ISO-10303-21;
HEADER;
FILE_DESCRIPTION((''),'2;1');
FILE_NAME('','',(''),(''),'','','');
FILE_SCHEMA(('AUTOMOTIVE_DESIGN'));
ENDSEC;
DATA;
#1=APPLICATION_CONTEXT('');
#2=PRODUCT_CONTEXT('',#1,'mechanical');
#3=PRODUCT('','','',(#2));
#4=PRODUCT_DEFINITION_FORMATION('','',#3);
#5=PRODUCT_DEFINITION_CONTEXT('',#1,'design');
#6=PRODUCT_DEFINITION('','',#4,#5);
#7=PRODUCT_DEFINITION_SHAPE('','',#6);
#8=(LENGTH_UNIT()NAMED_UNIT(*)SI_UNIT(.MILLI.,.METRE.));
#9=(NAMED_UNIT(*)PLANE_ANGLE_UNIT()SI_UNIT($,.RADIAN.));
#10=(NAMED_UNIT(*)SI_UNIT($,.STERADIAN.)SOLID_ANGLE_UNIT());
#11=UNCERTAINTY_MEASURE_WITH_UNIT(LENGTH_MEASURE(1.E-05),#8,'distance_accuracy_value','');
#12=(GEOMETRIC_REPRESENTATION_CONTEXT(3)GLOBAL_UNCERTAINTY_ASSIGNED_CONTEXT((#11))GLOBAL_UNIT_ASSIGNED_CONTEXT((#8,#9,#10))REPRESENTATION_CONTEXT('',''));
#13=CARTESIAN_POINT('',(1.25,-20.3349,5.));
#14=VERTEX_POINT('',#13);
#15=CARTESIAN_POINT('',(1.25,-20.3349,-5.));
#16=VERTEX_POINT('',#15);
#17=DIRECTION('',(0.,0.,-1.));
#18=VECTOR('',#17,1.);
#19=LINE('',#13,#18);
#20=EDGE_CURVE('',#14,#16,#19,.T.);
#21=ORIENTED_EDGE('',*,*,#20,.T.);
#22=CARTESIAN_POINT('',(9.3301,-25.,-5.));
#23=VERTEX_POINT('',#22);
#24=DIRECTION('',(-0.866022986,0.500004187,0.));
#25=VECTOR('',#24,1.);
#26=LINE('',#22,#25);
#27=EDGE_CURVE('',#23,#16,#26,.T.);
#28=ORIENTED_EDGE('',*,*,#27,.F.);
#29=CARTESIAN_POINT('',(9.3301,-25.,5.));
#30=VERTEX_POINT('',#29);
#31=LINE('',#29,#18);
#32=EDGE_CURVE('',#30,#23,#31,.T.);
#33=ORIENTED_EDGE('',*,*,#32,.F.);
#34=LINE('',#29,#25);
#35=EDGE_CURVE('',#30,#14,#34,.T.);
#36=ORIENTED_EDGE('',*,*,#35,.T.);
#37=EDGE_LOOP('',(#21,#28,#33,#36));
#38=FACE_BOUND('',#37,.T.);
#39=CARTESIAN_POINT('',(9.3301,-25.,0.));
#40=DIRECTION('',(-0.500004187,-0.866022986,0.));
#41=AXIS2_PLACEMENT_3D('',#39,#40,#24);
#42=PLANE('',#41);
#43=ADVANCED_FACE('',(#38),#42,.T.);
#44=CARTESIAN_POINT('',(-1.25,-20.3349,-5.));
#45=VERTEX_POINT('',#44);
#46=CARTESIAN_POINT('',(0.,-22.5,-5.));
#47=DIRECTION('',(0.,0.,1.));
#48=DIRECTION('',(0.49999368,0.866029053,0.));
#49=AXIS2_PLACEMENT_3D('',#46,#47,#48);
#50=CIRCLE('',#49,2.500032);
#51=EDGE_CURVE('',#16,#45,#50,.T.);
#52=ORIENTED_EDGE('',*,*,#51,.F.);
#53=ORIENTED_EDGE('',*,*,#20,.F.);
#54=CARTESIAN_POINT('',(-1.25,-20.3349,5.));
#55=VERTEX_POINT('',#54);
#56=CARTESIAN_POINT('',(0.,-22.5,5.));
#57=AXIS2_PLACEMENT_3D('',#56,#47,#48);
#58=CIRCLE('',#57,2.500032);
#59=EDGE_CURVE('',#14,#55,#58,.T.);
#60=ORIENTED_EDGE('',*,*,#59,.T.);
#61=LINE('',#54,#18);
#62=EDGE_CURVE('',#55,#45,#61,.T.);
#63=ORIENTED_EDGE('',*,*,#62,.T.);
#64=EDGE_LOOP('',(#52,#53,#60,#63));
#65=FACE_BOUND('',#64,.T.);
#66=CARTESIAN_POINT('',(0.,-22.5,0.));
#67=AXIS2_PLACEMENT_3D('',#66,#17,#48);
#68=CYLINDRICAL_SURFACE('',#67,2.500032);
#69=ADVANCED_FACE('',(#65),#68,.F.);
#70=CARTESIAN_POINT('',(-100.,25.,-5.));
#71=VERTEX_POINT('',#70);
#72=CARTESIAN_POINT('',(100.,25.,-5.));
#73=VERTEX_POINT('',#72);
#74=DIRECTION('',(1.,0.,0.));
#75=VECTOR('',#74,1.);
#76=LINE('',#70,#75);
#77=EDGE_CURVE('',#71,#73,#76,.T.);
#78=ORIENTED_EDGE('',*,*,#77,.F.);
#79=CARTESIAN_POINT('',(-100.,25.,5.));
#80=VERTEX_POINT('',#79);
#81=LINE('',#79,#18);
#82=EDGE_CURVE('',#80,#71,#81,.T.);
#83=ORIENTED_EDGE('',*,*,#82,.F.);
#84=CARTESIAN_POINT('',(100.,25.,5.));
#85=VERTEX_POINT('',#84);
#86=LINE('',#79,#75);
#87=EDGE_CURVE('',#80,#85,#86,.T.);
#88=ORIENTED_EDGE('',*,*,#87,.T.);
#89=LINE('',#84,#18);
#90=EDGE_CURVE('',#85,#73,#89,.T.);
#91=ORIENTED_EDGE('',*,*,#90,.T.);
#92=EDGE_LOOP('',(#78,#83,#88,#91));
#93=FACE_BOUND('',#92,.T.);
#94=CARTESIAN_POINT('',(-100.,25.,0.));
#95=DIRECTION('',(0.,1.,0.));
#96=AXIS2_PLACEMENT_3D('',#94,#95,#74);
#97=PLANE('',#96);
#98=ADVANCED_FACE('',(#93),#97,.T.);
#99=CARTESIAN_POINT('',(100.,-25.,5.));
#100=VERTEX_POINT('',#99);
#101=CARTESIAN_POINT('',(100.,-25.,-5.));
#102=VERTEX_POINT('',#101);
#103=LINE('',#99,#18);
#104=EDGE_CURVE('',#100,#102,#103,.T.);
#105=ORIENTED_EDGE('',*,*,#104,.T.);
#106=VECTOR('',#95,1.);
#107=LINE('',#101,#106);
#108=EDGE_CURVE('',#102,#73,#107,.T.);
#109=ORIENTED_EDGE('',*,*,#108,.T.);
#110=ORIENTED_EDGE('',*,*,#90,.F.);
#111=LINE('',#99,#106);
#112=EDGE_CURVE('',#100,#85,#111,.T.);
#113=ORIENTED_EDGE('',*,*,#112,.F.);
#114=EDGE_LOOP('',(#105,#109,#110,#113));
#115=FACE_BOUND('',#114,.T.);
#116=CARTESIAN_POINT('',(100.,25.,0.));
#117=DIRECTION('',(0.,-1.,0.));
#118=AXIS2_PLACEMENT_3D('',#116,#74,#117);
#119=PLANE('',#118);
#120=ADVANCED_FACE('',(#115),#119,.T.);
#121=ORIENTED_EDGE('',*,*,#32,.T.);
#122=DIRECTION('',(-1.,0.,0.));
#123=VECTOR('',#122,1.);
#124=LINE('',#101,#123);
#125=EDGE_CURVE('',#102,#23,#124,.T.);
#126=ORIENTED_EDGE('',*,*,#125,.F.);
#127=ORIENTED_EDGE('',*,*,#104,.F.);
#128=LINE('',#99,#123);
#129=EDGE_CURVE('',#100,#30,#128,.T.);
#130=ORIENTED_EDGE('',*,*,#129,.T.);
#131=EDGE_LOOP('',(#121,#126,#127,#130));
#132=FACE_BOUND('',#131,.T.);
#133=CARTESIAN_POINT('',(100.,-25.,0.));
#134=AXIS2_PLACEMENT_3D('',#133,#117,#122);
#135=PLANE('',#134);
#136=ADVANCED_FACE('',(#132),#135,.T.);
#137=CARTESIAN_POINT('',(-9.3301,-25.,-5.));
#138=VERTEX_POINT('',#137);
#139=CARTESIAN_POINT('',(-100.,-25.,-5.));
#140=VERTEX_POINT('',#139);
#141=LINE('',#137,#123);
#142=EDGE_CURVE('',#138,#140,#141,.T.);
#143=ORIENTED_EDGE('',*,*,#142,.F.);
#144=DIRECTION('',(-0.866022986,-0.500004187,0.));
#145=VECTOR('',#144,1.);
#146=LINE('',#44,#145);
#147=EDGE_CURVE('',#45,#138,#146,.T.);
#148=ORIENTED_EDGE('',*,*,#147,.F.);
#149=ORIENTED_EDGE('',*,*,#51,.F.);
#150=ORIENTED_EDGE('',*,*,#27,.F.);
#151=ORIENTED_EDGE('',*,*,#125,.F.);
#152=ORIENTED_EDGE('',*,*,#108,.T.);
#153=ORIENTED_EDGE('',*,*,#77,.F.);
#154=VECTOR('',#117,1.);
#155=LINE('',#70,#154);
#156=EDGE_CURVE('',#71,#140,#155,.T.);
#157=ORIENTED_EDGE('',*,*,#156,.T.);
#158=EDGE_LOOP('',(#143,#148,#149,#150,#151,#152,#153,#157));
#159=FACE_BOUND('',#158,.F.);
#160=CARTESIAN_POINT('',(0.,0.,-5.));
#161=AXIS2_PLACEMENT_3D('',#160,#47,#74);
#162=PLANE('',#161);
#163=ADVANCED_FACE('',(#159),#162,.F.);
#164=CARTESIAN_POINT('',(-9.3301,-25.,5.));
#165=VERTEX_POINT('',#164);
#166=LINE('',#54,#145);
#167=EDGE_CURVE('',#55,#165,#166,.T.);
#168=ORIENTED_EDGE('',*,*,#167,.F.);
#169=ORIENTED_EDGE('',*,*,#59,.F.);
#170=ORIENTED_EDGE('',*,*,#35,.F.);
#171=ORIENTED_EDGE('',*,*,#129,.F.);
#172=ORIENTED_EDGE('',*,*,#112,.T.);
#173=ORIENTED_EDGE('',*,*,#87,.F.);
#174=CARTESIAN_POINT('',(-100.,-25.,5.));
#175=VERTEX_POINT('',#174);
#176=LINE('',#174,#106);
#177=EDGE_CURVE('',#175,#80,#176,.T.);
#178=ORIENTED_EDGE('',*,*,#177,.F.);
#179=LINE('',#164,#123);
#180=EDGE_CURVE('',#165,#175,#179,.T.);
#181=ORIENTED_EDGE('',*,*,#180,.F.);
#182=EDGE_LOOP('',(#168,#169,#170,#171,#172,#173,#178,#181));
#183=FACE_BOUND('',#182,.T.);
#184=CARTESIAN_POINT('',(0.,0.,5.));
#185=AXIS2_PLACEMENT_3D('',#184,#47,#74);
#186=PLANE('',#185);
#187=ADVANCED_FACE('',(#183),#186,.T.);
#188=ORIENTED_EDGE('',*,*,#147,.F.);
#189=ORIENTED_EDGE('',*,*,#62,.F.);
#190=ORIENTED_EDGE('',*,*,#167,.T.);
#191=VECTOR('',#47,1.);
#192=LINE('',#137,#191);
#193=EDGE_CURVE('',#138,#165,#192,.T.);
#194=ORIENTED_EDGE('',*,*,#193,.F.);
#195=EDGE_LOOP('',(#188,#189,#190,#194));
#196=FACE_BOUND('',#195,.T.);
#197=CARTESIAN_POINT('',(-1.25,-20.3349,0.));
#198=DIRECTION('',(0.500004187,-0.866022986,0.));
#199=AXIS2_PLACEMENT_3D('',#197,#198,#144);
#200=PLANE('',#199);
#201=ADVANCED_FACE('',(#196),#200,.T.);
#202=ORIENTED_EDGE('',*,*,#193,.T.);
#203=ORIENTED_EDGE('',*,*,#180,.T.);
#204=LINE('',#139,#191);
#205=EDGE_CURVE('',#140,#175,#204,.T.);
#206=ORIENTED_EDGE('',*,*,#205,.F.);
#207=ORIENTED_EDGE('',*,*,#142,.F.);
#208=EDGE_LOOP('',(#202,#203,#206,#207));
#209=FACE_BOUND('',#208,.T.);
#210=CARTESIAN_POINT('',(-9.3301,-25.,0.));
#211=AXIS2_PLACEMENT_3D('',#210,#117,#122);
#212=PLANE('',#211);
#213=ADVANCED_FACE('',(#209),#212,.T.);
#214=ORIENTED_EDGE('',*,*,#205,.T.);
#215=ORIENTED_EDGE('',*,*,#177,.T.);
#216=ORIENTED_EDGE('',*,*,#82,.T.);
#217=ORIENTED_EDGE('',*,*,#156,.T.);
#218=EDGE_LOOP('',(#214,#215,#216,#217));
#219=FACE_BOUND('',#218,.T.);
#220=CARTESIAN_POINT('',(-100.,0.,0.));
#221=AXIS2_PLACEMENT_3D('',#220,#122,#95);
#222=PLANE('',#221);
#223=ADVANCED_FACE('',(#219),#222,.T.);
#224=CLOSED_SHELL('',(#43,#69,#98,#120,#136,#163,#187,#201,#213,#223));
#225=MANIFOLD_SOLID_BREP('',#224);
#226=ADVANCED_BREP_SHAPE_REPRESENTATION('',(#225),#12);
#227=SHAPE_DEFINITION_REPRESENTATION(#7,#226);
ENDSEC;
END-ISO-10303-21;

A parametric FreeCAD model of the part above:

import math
import FreeCAD as App
import Part
import Sketcher

V = App.Vector
Q = App.Units.Quantity

doc = App.newDocument("Part")
params = doc.addObject("Spreadsheet::Sheet", "Params")
for row, (alias, value) in enumerate([
    ("sketch1_radius", "2.5 mm"),
    ("sketch1_width", "200 mm"),
    ("sketch1_height", "50 mm"),
    ("pad1_length", "10 mm"),
], start=1):
    params.set(f"A{row}", alias)
    params.set(f"B{row}", "=" + value)
    params.setAlias(f"B{row}", alias)

body = doc.addObject("PartDesign::Body", "Body")

sketch1 = body.newObject("Sketcher::SketchObject", "Sketch")
sketch1.AttachmentSupport = (doc.getObject("XY_Plane"), [""])
sketch1.MapMode = "FlatFace"
sketch1.addGeometry([
    Part.LineSegment(V(-100, 25, 0), V(-100, -25, 0)),
    Part.LineSegment(V(-100, -25, 0), V(-9.3301, -25, 0)),
    Part.LineSegment(V(-9.3301, -25, 0), V(-1.25, -20.3349, 0)),
    Part.ArcOfCircle(Part.Circle(V(0, -22.5, 0), V(0, 0, 1), 2.500032), math.radians(60.000418), math.radians(119.999582)),
    Part.LineSegment(V(1.25, -20.3349, 0), V(9.3301, -25, 0)),
    Part.LineSegment(V(9.3301, -25, 0), V(100, -25, 0)),
    Part.LineSegment(V(100, -25, 0), V(100, 25, 0)),
    Part.LineSegment(V(100, 25, 0), V(-100, 25, 0)),
], False)
sketch1.addConstraint([
    Sketcher.Constraint("Coincident", 0, 2, 1, 1),
    Sketcher.Constraint("Coincident", 1, 2, 2, 1),
    Sketcher.Constraint("Tangent", 2, 2, 3, 2),
    Sketcher.Constraint("Tangent", 3, 1, 4, 1),
    Sketcher.Constraint("Coincident", 4, 2, 5, 1),
    Sketcher.Constraint("Coincident", 5, 2, 6, 1),
    Sketcher.Constraint("Coincident", 6, 2, 7, 1),
    Sketcher.Constraint("Coincident", 7, 2, 0, 1),
    Sketcher.Constraint("Vertical", 0),
    Sketcher.Constraint("Horizontal", 1),
    Sketcher.Constraint("Horizontal", 5),
    Sketcher.Constraint("Vertical", 6),
    Sketcher.Constraint("Horizontal", 7),
    Sketcher.Constraint("Symmetric", 0, 2, 6, 2, -1, 1),
    Sketcher.Constraint("Symmetric", 2, 2, 3, 1, -2),
    Sketcher.Constraint("Horizontal", 1, 2, 4, 2),
    Sketcher.Constraint("Radius", 3, Q("2.5 mm")),
    Sketcher.Constraint("DistanceX", 7, 2, 7, 1, Q("200 mm")),
    Sketcher.Constraint("DistanceY", 0, 2, 0, 1, Q("50 mm")),
    Sketcher.Constraint("DistanceY", 0, 2, 3, 3, Q("2.5 mm")),
    Sketcher.Constraint("DistanceX", 2, 2, 3, 1, Q("2.5 mm")),
])
sketch1.setExpression("Constraints[16]", "Params.sketch1_radius")
sketch1.setExpression("Constraints[17]", "Params.sketch1_width")
sketch1.setExpression("Constraints[18]", "Params.sketch1_height")
pad1 = body.newObject("PartDesign::Pad", "Pad")
pad1.Profile = sketch1
pad1.setExpression("Length", "Params.pad1_length")
pad1.Midplane = True

doc.recompute()
